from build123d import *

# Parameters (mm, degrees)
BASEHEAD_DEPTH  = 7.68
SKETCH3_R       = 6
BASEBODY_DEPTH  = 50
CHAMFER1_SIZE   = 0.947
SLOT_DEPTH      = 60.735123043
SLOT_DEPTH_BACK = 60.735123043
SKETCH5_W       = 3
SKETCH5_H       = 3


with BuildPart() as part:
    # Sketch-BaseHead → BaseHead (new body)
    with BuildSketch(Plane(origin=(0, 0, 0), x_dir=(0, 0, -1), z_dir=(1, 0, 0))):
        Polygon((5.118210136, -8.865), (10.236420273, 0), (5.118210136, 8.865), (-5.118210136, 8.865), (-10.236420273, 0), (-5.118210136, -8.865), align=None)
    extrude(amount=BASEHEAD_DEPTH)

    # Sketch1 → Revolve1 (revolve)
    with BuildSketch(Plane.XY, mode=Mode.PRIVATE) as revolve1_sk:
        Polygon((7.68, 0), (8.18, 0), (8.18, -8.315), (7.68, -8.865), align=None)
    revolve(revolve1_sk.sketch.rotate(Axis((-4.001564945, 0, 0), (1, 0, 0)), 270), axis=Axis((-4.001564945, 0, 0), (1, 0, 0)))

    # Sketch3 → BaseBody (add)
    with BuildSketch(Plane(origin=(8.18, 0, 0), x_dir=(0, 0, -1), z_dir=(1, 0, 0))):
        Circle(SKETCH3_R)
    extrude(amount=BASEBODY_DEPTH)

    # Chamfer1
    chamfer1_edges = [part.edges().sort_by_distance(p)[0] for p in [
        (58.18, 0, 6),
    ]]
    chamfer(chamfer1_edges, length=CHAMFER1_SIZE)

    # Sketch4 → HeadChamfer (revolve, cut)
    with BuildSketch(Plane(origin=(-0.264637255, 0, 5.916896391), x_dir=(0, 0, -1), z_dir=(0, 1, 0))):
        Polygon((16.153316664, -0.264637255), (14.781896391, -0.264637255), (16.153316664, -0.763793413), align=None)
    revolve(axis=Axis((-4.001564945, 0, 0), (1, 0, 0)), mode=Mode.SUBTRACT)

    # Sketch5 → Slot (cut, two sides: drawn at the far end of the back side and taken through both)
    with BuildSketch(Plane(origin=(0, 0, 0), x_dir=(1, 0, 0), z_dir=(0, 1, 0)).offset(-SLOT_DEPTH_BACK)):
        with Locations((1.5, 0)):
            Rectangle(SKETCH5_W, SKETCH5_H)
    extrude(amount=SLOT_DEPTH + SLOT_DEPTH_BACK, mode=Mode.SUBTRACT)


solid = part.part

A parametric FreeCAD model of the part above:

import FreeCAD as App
import Part
import Sketcher
from FreeCAD import Vector
Q = App.Units.Quantity


def edges_at(feature, points):
    """Names of the edges that pass closest to the given points."""
    edges = feature.Shape.Edges
    near = lambda p: min(range(len(edges)), key=lambda i: edges[i].distToShape(Part.Vertex(*p))[0])
    return sorted({f"Edge{near(p) + 1}" for p in points})


def add_polygon(sketch, points):
    """Adds a closed chain of lines whose ends are joined by coincident constraints."""
    first, n = sketch.GeometryCount, len(points)
    for a, b in zip(points, points[1:] + points[:1]):
        sketch.addGeometry(Part.LineSegment(App.Vector(*a, 0), App.Vector(*b, 0)), False)
    for i in range(n):
        sketch.addConstraint(Sketcher.Constraint("Coincident", first + i, 2, first + (i + 1) % n, 1))

doc = App.newDocument("Part")
body = doc.addObject("PartDesign::Body", "Body")

# Sketch on YZ plane
sketch1 = doc.addObject("Sketcher::SketchObject", "Sketch")
body.addObject(sketch1)
sketch1.AttachmentSupport = (doc.YZ_Plane, [""])
sketch1.MapMode = "FlatFace"
add_polygon(sketch1, [(-9, -5), (0, -10), (9, -5), (9, 5), (0, 10), (-9, 5)])  # lines 0-5
sketch1.addConstraint([
    Sketcher.Constraint("Vertical", 2),
    Sketcher.Constraint("Vertical", 5),
    Sketcher.Constraint("Symmetric", 0, 2, 3, 2, -1, 1),
    Sketcher.Constraint("Symmetric", 1, 2, 4, 2, -1, 1),
    Sketcher.Constraint("PointOnObject", 0, 2, -2),
    Sketcher.Constraint("Parallel", 0, 3),
    Sketcher.Constraint("Horizontal", 2, 2, 4, 2),
    Sketcher.Constraint("Angle", 0, Q("-30 deg")),
    Sketcher.Constraint("DistanceX", 4, 2, 2, 2, Q("17.73 mm")),
    Sketcher.Constraint("DistanceY", 2, 1, 2, 2, Q("10.23642 mm")),
])
pad1 = doc.addObject("PartDesign::Pad", "Pad")
body.addObject(pad1)
pad1.Profile = sketch1
pad1.Length = 7.68

# Sketch on XY plane
sketch2 = doc.addObject("Sketcher::SketchObject", "Sketch001")
body.addObject(sketch2)
sketch2.AttachmentSupport = (doc.XY_Plane, [""])
sketch2.MapMode = "FlatFace"
add_polygon(sketch2, [(8.2, 0), (7.7, 0), (7.7, -8.9), (8.2, -8.3)])  # lines 0-3
sketch2.addConstraint([
    Sketcher.Constraint("Horizontal", 0),
    Sketcher.Constraint("Vertical", 1),
    Sketcher.Constraint("Vertical", 3),
    Sketcher.Constraint("PointOnObject", 0, 2, -1),
    Sketcher.Constraint("DistanceX", 0, 2, 0, 1, Q("0.5 mm")),
    Sketcher.Constraint("DistanceY", 1, 2, 1, 1, Q("8.865 mm")),
    Sketcher.Constraint("DistanceY", 3, 1, 3, 2, Q("8.315 mm")),
    Sketcher.Constraint("DistanceX", -1, 1, 0, 2, Q("7.68 mm")),
])
revolution = doc.addObject("PartDesign::Revolution", "Revolution")
body.addObject(revolution)
revolution.Profile = sketch2
revolution.ReferenceAxis = (sketch2, ["H_Axis"])
revolution.Angle = 360

# Sketch on YZ plane
sketch3 = doc.addObject("Sketcher::SketchObject", "Sketch002")
body.addObject(sketch3)
sketch3.AttachmentSupport = (doc.YZ_Plane, [""])
sketch3.MapMode = "FlatFace"
sketch3.AttachmentOffset = App.Placement(Vector(0, 0, 8.18), App.Rotation())
sketch3.addGeometry(Part.Circle(Vector(0, 0, 0), Vector(0, 0, 1), 6), False)
sketch3.addConstraint([
    Sketcher.Constraint("Coincident", 0, 3, -1, 1),
    Sketcher.Constraint("Diameter", 0, Q("12 mm")),
])
pad2 = doc.addObject("PartDesign::Pad", "Pad001")
body.addObject(pad2)
pad2.Profile = sketch3
pad2.Length = 50
doc.recompute()

chamfer = doc.addObject("PartDesign::Chamfer", "Chamfer")
body.addObject(chamfer)
chamfer.Base = (pad2, edges_at(pad2, [(58.18, 0, 6)]))
chamfer.Size = 0.947

# Sketch on XZ plane
sketch4 = doc.addObject("Sketcher::SketchObject", "Sketch003")
body.addObject(sketch4)
sketch4.AttachmentSupport = (doc.XZ_Plane, [""])
sketch4.MapMode = "FlatFace"
add_polygon(sketch4, [(0, -10.24), (0, -8.87), (0.5, -10.24)])  # lines 0-2
sketch4.addConstraint([
    Sketcher.Constraint("Vertical", 0),
    Sketcher.Constraint("Horizontal", 2),
    Sketcher.Constraint("PointOnObject", 0, 2, -2),
    Sketcher.Constraint("Angle", 1, Q("-70 deg")),
    Sketcher.Constraint("DistanceY", 0, 2, -1, 1, Q("8.865 mm")),
    Sketcher.Constraint("DistanceY", 0, 1, 0, 2, Q("1.37142 mm")),
])
groove = doc.addObject("PartDesign::Groove", "Groove")
body.addObject(groove)
groove.Profile = sketch4
groove.ReferenceAxis = (sketch4, ["H_Axis"])
groove.Angle = 360

# Sketch on XZ plane
sketch5 = doc.addObject("Sketcher::SketchObject", "Sketch004")
body.addObject(sketch5)
sketch5.AttachmentSupport = (doc.XZ_Plane, [""])
sketch5.MapMode = "FlatFace"
add_polygon(sketch5, [(0, -1.5), (0, 1.5), (3, 1.5), (3, -1.5)])  # lines 0-3
sketch5.addConstraint([
    Sketcher.Constraint("Vertical", 0),
    Sketcher.Constraint("Horizontal", 1),
    Sketcher.Constraint("Vertical", 2),
    Sketcher.Constraint("Horizontal", 3),
    Sketcher.Constraint("Symmetric", 0, 2, 3, 2, -1, 1),
    Sketcher.Constraint("Equal", 3, 0),
    Sketcher.Constraint("DistanceX", 1, 1, 1, 2, Q("3 mm")),
])
pocket1 = doc.addObject("PartDesign::Pocket", "Pocket")
body.addObject(pocket1)
pocket1.Profile = sketch5
pocket1.Type = "ThroughAll"
pocket1.Midplane = True

doc.recompute()
